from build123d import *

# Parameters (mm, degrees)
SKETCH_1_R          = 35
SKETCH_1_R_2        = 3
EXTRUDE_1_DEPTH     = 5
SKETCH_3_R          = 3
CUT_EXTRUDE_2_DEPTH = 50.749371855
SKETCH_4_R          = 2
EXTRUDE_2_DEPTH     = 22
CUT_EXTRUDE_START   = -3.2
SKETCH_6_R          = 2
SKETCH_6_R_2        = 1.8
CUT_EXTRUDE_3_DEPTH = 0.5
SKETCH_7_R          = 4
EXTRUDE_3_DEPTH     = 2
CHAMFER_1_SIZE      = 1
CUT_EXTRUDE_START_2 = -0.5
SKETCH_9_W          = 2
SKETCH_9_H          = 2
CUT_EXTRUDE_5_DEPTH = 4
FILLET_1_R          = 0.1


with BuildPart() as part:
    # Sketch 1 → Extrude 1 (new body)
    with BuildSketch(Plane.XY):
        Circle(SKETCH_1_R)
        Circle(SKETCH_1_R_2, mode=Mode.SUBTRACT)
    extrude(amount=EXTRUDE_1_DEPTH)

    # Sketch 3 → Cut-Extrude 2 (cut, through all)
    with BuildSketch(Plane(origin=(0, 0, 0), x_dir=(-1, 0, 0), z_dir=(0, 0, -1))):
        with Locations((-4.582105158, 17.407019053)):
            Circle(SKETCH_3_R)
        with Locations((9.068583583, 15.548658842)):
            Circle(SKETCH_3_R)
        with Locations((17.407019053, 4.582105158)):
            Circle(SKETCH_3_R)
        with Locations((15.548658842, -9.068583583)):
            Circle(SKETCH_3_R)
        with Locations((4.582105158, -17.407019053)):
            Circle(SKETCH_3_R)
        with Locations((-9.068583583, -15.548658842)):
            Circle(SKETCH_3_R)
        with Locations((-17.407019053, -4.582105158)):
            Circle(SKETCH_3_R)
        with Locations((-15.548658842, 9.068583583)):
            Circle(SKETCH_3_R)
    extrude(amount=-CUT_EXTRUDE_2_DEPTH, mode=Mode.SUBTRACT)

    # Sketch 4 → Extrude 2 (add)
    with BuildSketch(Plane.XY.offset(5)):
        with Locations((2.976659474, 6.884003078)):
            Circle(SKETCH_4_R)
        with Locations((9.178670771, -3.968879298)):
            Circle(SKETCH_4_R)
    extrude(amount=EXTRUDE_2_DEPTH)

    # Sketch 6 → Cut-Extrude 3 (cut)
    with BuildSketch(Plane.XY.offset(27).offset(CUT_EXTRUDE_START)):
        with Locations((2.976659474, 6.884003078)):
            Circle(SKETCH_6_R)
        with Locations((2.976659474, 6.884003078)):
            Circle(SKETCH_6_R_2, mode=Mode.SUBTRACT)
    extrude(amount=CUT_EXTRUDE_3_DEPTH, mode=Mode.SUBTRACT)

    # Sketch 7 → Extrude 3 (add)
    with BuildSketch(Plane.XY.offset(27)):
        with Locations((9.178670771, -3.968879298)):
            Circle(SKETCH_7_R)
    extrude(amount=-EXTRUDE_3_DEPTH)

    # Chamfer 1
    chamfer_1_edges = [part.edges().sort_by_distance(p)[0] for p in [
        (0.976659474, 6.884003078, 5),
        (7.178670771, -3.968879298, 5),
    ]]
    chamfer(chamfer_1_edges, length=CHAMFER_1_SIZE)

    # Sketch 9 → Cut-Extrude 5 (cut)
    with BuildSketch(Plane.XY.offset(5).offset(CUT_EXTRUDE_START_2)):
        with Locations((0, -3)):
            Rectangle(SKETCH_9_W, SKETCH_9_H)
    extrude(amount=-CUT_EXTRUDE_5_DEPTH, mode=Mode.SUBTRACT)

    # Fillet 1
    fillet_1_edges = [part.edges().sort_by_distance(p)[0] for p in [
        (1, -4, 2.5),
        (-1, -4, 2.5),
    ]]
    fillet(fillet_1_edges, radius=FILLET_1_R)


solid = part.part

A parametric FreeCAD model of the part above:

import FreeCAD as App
import Part
import Sketcher
from FreeCAD import Vector
Q = App.Units.Quantity


def edges_at(feature, points):
    """Names of the edges that pass closest to the given points."""
    edges = feature.Shape.Edges
    near = lambda p: min(range(len(edges)), key=lambda i: edges[i].distToShape(Part.Vertex(*p))[0])
    return sorted({f"Edge{near(p) + 1}" for p in points})


def add_polygon(sketch, points):
    """Adds a closed chain of lines whose ends are joined by coincident constraints."""
    first, n = sketch.GeometryCount, len(points)
    for a, b in zip(points, points[1:] + points[:1]):
        sketch.addGeometry(Part.LineSegment(App.Vector(*a, 0), App.Vector(*b, 0)), False)
    for i in range(n):
        sketch.addConstraint(Sketcher.Constraint("Coincident", first + i, 2, first + (i + 1) % n, 1))

doc = App.newDocument("Part")
params = doc.addObject("Spreadsheet::Sheet", "Params")
for row, (alias, value) in enumerate([
    ("sketch1_diameter", "70 mm"),
    ("sketch1_diameter2", "6 mm"),
    ("pad1_length", "5 mm"),
    ("sketch2_diameter", "6 mm"),
    ("sketch3_diameter", "4 mm"),
    ("pad2_length", "22 mm"),
    ("sketch4_diameter", "4 mm"),
    ("sketch4_diameter2", "3.6 mm"),
    ("pocket2_length", "0.5 mm"),
    ("sketch5_diameter", "8 mm"),
    ("pad3_length", "2 mm"),
    ("chamfer_size", "1 mm"),
    ("sketch6_width", "2 mm"),
    ("pocket3_length", "4 mm"),
    ("fillet_radius", "0.1 mm"),
], start=1):
    params.set(f"A{row}", alias)
    params.set(f"B{row}", "=" + value)
    params.setAlias(f"B{row}", alias)

body = doc.addObject("PartDesign::Body", "Body")

# Sketch on XY plane
sketch1 = doc.addObject("Sketcher::SketchObject", "Sketch")
body.addObject(sketch1)
sketch1.AttachmentSupport = (doc.XY_Plane, [""])
sketch1.MapMode = "FlatFace"
sketch1.addGeometry([
    Part.Circle(Vector(0, 0, 0), Vector(0, 0, 1), 35),
    Part.Circle(Vector(0, 0, 0), Vector(0, 0, 1), 3),
], False)
sketch1.addConstraint([
    Sketcher.Constraint("Coincident", 0, 3, -1, 1),
    Sketcher.Constraint("Coincident", 1, 3, -1, 1),
    Sketcher.Constraint("Diameter", 0, Q("70 mm")),
    Sketcher.Constraint("Diameter", 1, Q("6 mm")),
])
sketch1.setExpression("Constraints[2]", "Params.sketch1_diameter")
sketch1.setExpression("Constraints[3]", "Params.sketch1_diameter2")
pad1 = doc.addObject("PartDesign::Pad", "Pad")
body.addObject(pad1)
pad1.Profile = sketch1
pad1.setExpression("Length", "Params.pad1_length")

# Sketch on XY plane
sketch2 = doc.addObject("Sketcher::SketchObject", "Sketch001")
body.addObject(sketch2)
sketch2.AttachmentSupport = (doc.XY_Plane, [""])
sketch2.MapMode = "FlatFace"
sketch2.addGeometry([
    Part.Circle(Vector(4.6, 17.4, 0), Vector(0, 0, 1), 3),  # 0
    Part.Circle(Vector(-9.1, 15.5, 0), Vector(0, 0, 1), 3),  # 1
    Part.Circle(Vector(-17.4, 4.6, 0), Vector(0, 0, 1), 3),  # 2
    Part.Circle(Vector(-15.5, -9.1, 0), Vector(0, 0, 1), 3),  # 3
    Part.Circle(Vector(-4.6, -17.4, 0), Vector(0, 0, 1), 3),  # 4
    Part.Circle(Vector(9.1, -15.5, 0), Vector(0, 0, 1), 3),  # 5
    Part.Circle(Vector(17.4, -4.6, 0), Vector(0, 0, 1), 3),  # 6
    Part.Circle(Vector(15.5, 9.1, 0), Vector(0, 0, 1), 3),  # 7
], False)
sketch2.addConstraint([
    Sketcher.Constraint("Equal", 0, 1),
    Sketcher.Constraint("Equal", 1, 2),
    Sketcher.Constraint("Equal", 2, 3),
    Sketcher.Constraint("Equal", 3, 4),
    Sketcher.Constraint("Equal", 4, 5),
    Sketcher.Constraint("Equal", 5, 6),
    Sketcher.Constraint("Equal", 6, 7),
    Sketcher.Constraint("Symmetric", 0, 3, 4, 3, -1, 1),
    Sketcher.Constraint("Symmetric", 1, 3, 5, 3, -1, 1),
    Sketcher.Constraint("Symmetric", 2, 3, 6, 3, -1, 1),
    Sketcher.Constraint("Symmetric", 3, 3, 7, 3, -1, 1),
    Sketcher.Constraint("Diameter", 0, Q("6 mm")),
    Sketcher.Constraint("DistanceY", -1, 1, 0, 3, Q("17.407019 mm")),
    Sketcher.Constraint("DistanceY", -1, 1, 1, 3, Q("15.548659 mm")),
    Sketcher.Constraint("DistanceX", 2, 3, -1, 1, Q("17.407019 mm")),
    Sketcher.Constraint("DistanceX", 3, 3, -1, 1, Q("15.548659 mm")),
    Sketcher.Constraint("DistanceX", 1, 3, 0, 3, Q("13.650689 mm")),
    Sketcher.Constraint("DistanceY", 3, 3, 2, 3, Q("13.650689 mm")),
    Sketcher.Constraint("DistanceX", 1, 3, 4, 3, Q("4.486478 mm")),
    Sketcher.Constraint("DistanceY", 3, 3, 6, 3, Q("4.486478 mm")),
])
sketch2.setExpression("Constraints[11]", "Params.sketch2_diameter")
pocket1 = doc.addObject("PartDesign::Pocket", "Pocket")
body.addObject(pocket1)
pocket1.Profile = sketch2
pocket1.Type = "ThroughAll"
pocket1.Reversed = True

# Sketch on XY plane
sketch3 = doc.addObject("Sketcher::SketchObject", "Sketch002")
body.addObject(sketch3)
sketch3.AttachmentSupport = (doc.XY_Plane, [""])
sketch3.MapMode = "FlatFace"
sketch3.AttachmentOffset = App.Placement(Vector(0, 0, 5), App.Rotation())
sketch3.addGeometry([
    Part.Circle(Vector(3, 6.9, 0), Vector(0, 0, 1), 2),
    Part.Circle(Vector(9.2, -4, 0), Vector(0, 0, 1), 2),
], False)
sketch3.addConstraint([
    Sketcher.Constraint("Equal", 0, 1),
    Sketcher.Constraint("Diameter", 0, Q("4 mm")),
    Sketcher.Constraint("DistanceX", -1, 1, 0, 3, Q("2.976659 mm")),
    Sketcher.Constraint("DistanceX", -1, 1, 1, 3, Q("9.178671 mm")),
    Sketcher.Constraint("DistanceY", 1, 3, -1, 1, Q("3.968879 mm")),
    Sketcher.Constraint("DistanceY", -1, 1, 0, 3, Q("6.884003 mm")),
])
sketch3.setExpression("Constraints[1]", "Params.sketch3_diameter")
pad2 = doc.addObject("PartDesign::Pad", "Pad001")
body.addObject(pad2)
pad2.Profile = sketch3
pad2.setExpression("Length", "Params.pad2_length")

# Sketch on XY plane
sketch4 = doc.addObject("Sketcher::SketchObject", "Sketch003")
body.addObject(sketch4)
sketch4.AttachmentSupport = (doc.XY_Plane, [""])
sketch4.MapMode = "FlatFace"
sketch4.AttachmentOffset = App.Placement(Vector(0, 0, 23.8), App.Rotation())
sketch4.addGeometry([
    Part.Circle(Vector(3, 6.9, 0), Vector(0, 0, 1), 2),
    Part.Circle(Vector(3, 6.9, 0), Vector(0, 0, 1), 1.8),
], False)
sketch4.addConstraint([
    Sketcher.Constraint("Coincident", 1, 3, 0, 3),
    Sketcher.Constraint("Diameter", 0, Q("4 mm")),
    Sketcher.Constraint("Diameter", 1, Q("3.6 mm")),
    Sketcher.Constraint("DistanceX", -1, 1, 0, 3, Q("2.976659 mm")),
    Sketcher.Constraint("DistanceY", -1, 1, 0, 3, Q("6.884003 mm")),
])
sketch4.setExpression("Constraints[1]", "Params.sketch4_diameter")
sketch4.setExpression("Constraints[2]", "Params.sketch4_diameter2")
pocket2 = doc.addObject("PartDesign::Pocket", "Pocket001")
body.addObject(pocket2)
pocket2.Profile = sketch4
pocket2.setExpression("Length", "Params.pocket2_length")
pocket2.Reversed = True

# Sketch on XY plane
sketch5 = doc.addObject("Sketcher::SketchObject", "Sketch004")
body.addObject(sketch5)
sketch5.AttachmentSupport = (doc.XY_Plane, [""])
sketch5.MapMode = "FlatFace"
sketch5.AttachmentOffset = App.Placement(Vector(0, 0, 27), App.Rotation())
sketch5.addGeometry(Part.Circle(Vector(9.2, -4, 0), Vector(0, 0, 1), 4), False)
sketch5.addConstraint([
    Sketcher.Constraint("Diameter", 0, Q("8 mm")),
    Sketcher.Constraint("DistanceX", -1, 1, 0, 3, Q("9.178671 mm")),
    Sketcher.Constraint("DistanceY", 0, 3, -1, 1, Q("3.968879 mm")),
])
sketch5.setExpression("Constraints[0]", "Params.sketch5_diameter")
pad3 = doc.addObject("PartDesign::Pad", "Pad002")
body.addObject(pad3)
pad3.Profile = sketch5
pad3.setExpression("Length", "Params.pad3_length")
pad3.Reversed = True
doc.recompute()

chamfer = doc.addObject("PartDesign::Chamfer", "Chamfer")
body.addObject(chamfer)
chamfer.Base = (pad3, edges_at(pad3, [(0.977, 6.884, 5), (7.179, -3.969, 5)]))
chamfer.setExpression("Size", "Params.chamfer_size")

# Sketch on XY plane
sketch6 = doc.addObject("Sketcher::SketchObject", "Sketch005")
body.addObject(sketch6)
sketch6.AttachmentSupport = (doc.XY_Plane, [""])
sketch6.MapMode = "FlatFace"
sketch6.AttachmentOffset = App.Placement(Vector(0, 0, 4.5), App.Rotation())
add_polygon(sketch6, [(-1, -2), (-1, -4), (1, -4), (1, -2)])  # lines 0-3
sketch6.addConstraint([
    Sketcher.Constraint("Vertical", 0),
    Sketcher.Constraint("Horizontal", 1),
    Sketcher.Constraint("Vertical", 2),
    Sketcher.Constraint("Horizontal", 3),
    Sketcher.Constraint("Equal", 3, 0),
    Sketcher.Constraint("DistanceX", 1, 1, 1, 2, Q("2 mm")),
    Sketcher.Constraint("DistanceX", 0, 2, -1, 1, Q("1 mm")),
    Sketcher.Constraint("DistanceY", 0, 2, -1, 1, Q("4 mm")),
])
sketch6.setExpression("Constraints[9]", "Params.sketch6_width")
pocket3 = doc.addObject("PartDesign::Pocket", "Pocket002")
body.addObject(pocket3)
pocket3.Profile = sketch6
pocket3.setExpression("Length", "Params.pocket3_length")
doc.recompute()

fillet = doc.addObject("PartDesign::Fillet", "Fillet")
body.addObject(fillet)
fillet.Base = (pocket3, edges_at(pocket3, [(1, -4, 2.5), (-1, -4, 2.5)]))
fillet.setExpression("Radius", "Params.fillet_radius")

doc.recompute()
